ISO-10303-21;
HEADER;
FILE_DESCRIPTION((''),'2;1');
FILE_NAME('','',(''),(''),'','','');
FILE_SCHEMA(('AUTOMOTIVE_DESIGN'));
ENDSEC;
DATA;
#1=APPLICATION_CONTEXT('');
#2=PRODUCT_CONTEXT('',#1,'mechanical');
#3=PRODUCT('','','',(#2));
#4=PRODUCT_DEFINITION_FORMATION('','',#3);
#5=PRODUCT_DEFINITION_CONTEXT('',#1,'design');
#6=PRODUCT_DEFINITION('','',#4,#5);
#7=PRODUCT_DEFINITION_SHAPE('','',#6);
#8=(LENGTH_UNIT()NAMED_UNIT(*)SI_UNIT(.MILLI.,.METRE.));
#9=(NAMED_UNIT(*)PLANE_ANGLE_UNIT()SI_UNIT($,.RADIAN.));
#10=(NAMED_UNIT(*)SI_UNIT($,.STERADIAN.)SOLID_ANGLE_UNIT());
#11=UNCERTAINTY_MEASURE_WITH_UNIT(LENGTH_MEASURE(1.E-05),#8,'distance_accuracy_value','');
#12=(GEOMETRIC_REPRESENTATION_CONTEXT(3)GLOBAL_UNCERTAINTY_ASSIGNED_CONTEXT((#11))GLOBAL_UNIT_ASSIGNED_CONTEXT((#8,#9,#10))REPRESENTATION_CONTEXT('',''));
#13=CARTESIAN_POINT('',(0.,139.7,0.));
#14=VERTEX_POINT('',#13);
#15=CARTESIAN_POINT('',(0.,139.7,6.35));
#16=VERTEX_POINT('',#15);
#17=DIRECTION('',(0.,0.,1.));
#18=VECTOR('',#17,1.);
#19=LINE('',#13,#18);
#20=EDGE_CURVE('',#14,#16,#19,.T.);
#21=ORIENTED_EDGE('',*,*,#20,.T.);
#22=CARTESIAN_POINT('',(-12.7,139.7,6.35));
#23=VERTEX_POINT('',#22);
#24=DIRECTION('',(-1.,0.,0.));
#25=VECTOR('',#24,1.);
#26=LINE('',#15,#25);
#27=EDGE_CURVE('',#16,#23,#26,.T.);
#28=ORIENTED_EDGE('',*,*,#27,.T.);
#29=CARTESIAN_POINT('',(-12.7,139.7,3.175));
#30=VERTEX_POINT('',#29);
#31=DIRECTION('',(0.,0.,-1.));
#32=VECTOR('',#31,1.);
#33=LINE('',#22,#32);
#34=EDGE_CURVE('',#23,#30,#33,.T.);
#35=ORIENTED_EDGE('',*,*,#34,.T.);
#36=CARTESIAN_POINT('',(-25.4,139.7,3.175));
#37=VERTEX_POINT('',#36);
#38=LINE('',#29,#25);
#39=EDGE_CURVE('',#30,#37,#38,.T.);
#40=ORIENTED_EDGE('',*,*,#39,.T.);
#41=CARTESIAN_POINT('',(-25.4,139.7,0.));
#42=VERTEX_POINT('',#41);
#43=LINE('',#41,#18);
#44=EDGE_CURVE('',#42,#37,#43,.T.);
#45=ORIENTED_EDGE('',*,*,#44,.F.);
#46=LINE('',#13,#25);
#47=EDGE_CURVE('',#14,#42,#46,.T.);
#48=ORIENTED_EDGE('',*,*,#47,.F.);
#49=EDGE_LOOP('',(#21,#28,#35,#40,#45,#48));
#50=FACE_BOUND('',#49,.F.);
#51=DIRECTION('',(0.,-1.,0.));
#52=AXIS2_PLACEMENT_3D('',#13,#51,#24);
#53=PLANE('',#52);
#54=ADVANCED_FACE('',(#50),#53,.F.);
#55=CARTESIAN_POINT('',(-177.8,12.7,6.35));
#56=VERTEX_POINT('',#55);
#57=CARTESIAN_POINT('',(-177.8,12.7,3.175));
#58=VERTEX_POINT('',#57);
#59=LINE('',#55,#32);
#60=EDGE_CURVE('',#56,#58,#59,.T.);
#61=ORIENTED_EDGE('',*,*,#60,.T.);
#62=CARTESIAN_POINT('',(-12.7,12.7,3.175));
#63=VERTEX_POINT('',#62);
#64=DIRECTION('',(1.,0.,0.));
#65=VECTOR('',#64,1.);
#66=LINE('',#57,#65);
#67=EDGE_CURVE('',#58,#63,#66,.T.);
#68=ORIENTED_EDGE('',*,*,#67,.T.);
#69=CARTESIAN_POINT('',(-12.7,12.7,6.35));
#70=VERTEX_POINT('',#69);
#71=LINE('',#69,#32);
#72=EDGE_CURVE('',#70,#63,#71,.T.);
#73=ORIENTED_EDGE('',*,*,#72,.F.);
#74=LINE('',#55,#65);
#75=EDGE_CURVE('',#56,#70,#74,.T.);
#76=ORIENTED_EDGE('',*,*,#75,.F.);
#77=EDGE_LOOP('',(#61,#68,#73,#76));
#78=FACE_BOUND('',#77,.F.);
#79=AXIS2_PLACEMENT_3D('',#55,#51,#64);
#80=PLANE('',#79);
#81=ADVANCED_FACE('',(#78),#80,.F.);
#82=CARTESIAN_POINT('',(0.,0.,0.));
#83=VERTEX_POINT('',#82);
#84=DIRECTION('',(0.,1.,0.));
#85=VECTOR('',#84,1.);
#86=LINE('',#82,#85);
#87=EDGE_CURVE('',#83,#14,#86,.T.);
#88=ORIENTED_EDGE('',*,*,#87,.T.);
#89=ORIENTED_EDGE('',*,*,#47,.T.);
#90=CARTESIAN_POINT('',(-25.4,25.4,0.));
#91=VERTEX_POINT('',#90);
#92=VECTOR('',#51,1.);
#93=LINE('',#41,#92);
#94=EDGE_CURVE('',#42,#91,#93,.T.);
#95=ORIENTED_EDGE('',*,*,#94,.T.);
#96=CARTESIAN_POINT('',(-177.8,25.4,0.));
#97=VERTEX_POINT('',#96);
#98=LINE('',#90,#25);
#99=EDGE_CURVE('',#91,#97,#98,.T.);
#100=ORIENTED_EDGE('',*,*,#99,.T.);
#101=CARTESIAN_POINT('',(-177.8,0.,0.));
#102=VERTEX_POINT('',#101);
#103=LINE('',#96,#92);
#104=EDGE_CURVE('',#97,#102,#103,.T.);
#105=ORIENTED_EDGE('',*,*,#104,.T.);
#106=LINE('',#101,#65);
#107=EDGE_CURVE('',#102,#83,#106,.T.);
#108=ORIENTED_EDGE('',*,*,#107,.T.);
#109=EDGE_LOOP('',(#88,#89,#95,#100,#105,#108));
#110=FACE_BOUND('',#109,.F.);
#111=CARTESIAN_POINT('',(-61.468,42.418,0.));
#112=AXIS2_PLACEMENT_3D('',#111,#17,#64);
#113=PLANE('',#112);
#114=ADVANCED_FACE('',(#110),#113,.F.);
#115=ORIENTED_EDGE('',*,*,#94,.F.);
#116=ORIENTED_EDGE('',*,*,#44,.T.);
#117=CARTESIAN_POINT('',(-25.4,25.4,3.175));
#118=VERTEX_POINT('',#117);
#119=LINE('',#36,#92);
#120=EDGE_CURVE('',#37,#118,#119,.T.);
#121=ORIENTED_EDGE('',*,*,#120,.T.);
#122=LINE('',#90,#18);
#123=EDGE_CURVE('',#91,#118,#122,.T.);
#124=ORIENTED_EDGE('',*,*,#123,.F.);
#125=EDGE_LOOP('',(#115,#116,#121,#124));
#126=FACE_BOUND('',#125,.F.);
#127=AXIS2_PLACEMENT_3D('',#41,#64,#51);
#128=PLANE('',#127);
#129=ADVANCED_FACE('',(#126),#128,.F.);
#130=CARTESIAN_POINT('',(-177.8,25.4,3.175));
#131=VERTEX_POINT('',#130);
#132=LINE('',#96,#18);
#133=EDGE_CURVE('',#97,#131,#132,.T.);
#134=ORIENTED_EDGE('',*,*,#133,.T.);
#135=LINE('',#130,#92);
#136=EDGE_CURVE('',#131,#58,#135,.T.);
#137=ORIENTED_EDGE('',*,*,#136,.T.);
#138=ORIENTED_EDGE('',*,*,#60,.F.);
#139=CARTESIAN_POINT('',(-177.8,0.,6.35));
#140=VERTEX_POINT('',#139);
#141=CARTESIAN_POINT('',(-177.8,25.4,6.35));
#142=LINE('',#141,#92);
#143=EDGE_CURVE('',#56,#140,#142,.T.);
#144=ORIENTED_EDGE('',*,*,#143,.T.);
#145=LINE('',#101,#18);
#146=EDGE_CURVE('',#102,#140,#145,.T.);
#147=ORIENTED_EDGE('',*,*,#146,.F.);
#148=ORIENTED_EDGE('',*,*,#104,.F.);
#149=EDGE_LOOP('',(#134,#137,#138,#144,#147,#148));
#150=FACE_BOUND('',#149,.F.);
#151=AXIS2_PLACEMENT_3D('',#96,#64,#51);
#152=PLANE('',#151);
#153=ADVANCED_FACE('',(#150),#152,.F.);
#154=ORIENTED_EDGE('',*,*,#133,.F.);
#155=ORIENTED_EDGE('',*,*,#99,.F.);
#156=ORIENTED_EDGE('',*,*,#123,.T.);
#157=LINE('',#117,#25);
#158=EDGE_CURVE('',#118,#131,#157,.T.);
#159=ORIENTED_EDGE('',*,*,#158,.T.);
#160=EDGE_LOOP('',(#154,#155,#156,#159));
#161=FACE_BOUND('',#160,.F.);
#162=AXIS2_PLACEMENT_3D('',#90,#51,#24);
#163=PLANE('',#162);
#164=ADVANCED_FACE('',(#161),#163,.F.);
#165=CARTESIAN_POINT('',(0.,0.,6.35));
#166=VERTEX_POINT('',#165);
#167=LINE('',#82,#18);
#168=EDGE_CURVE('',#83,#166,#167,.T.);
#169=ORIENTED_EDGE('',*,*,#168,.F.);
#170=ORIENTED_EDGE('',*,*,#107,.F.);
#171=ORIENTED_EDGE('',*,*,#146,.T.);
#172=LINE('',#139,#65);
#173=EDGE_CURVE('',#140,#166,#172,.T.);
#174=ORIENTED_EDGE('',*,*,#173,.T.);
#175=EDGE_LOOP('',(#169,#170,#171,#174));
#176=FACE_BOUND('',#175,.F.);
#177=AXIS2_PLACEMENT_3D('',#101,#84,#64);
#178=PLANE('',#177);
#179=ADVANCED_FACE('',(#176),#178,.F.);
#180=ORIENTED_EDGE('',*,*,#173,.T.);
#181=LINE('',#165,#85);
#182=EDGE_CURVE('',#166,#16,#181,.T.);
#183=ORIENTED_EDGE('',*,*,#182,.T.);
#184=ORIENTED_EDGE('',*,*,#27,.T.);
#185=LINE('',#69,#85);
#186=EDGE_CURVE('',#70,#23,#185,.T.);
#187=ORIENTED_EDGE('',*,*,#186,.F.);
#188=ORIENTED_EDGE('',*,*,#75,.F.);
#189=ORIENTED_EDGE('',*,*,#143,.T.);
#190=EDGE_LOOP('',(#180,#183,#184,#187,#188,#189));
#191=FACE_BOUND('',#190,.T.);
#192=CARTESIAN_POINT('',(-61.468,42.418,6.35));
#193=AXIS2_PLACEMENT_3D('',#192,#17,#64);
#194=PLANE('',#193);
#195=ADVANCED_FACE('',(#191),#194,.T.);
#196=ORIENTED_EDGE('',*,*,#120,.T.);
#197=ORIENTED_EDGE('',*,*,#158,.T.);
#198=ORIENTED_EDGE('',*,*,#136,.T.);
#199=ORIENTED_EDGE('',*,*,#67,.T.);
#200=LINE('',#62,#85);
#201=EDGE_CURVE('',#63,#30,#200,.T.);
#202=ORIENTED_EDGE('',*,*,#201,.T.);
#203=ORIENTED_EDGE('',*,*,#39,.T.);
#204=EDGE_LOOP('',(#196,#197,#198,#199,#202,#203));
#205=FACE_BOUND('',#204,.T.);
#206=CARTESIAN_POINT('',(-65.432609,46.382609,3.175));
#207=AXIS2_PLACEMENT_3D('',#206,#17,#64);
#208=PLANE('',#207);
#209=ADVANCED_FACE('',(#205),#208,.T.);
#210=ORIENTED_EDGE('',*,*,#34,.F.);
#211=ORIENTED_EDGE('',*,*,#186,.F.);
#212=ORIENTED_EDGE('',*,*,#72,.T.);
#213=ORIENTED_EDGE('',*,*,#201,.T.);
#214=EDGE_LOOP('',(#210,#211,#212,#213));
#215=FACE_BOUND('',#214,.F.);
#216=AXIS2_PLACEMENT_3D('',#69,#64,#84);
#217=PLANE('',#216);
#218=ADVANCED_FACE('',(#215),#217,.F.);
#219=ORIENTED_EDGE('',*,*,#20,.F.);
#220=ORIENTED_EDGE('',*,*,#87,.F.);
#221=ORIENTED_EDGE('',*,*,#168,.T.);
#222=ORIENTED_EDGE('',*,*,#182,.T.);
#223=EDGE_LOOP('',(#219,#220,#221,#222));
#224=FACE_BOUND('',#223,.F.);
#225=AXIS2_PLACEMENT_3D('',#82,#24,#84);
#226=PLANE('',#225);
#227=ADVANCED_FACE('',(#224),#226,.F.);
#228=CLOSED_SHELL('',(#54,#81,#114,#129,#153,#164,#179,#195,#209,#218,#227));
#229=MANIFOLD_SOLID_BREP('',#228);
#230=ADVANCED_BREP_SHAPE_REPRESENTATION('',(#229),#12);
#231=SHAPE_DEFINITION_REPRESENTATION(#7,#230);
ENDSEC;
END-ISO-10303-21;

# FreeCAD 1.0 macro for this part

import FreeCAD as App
import Part
import Sketcher

V = App.Vector
Q = App.Units.Quantity

doc = App.newDocument("Part")
body = doc.addObject("PartDesign::Body", "Body")

# Sketch on XY plane
sketch1 = body.newObject("Sketcher::SketchObject", "Sketch")
sketch1.AttachmentSupport = (doc.getObject("XY_Plane"), [""])
sketch1.MapMode = "FlatFace"
sketch1.addGeometry([
    Part.LineSegment(V(-178, 0, 0), V(0, 0, 0)),  # 0
    Part.LineSegment(V(0, 0, 0), V(0, 140, 0)),  # 1
    Part.LineSegment(V(0, 140, 0), V(-25, 140, 0)),  # 2
    Part.LineSegment(V(-25, 140, 0), V(-25, 25, 0)),  # 3
    Part.LineSegment(V(-25, 25, 0), V(-178, 25, 0)),  # 4
    Part.LineSegment(V(-178, 25, 0), V(-178, 0, 0)),  # 5
], False)
sketch1.addConstraint([
    Sketcher.Constraint("Coincident", 0, 2, 1, 1),
    Sketcher.Constraint("Coincident", 1, 2, 2, 1),
    Sketcher.Constraint("Coincident", 2, 2, 3, 1),
    Sketcher.Constraint("Coincident", 3, 2, 4, 1),
    Sketcher.Constraint("Coincident", 4, 2, 5, 1),
    Sketcher.Constraint("Coincident", 5, 2, 0, 1),
    Sketcher.Constraint("Horizontal", 0),
    Sketcher.Constraint("Vertical", 1),
    Sketcher.Constraint("Horizontal", 2),
    Sketcher.Constraint("Vertical", 3),
    Sketcher.Constraint("Horizontal", 4),
    Sketcher.Constraint("Vertical", 5),
    Sketcher.Constraint("Coincident", 0, 2, -1, 1),
    Sketcher.Constraint("Equal", 2, 5),
    Sketcher.Constraint("DistanceX", 0, 1, 0, 2, Q("7 in")),
    Sketcher.Constraint("DistanceX", 2, 2, 2, 1, Q("1 in")),
    Sketcher.Constraint("DistanceY", 1, 1, 1, 2, Q("5.5 in")),
])
pad1 = body.newObject("PartDesign::Pad", "Pad")
pad1.Profile = sketch1
pad1.Length = Q("0.25 in")

# Sketch on XY plane
sketch2 = body.newObject("Sketcher::SketchObject", "Sketch001")
sketch2.AttachmentSupport = (doc.getObject("XY_Plane"), [""])
sketch2.MapMode = "FlatFace"
sketch2.AttachmentOffset = App.Placement(V(0, 0, 0.25 * 25.4), App.Rotation())
sketch2.addGeometry([
    Part.LineSegment(V(-178, 25, 0), V(-178, 13, 0)),  # 0
    Part.LineSegment(V(-178, 13, 0), V(-13, 13, 0)),  # 1
    Part.LineSegment(V(-13, 13, 0), V(-13, 140, 0)),  # 2
    Part.LineSegment(V(-13, 140, 0), V(-25, 140, 0)),  # 3
    Part.LineSegment(V(-25, 140, 0), V(-25, 25, 0)),  # 4
    Part.LineSegment(V(-25, 25, 0), V(-178, 25, 0)),  # 5
], False)
sketch2.addConstraint([
    Sketcher.Constraint("Coincident", 0, 2, 1, 1),
    Sketcher.Constraint("Coincident", 1, 2, 2, 1),
    Sketcher.Constraint("Coincident", 2, 2, 3, 1),
    Sketcher.Constraint("Coincident", 3, 2, 4, 1),
    Sketcher.Constraint("Coincident", 4, 2, 5, 1),
    Sketcher.Constraint("Coincident", 5, 2, 0, 1),
    Sketcher.Constraint("Vertical", 0),
    Sketcher.Constraint("Horizontal", 1),
    Sketcher.Constraint("Vertical", 2),
    Sketcher.Constraint("Horizontal", 3),
    Sketcher.Constraint("Vertical", 4),
    Sketcher.Constraint("Horizontal", 5),
    Sketcher.Constraint("Equal", 3, 0),
    Sketcher.Constraint("DistanceX", 5, 2, 5, 1, Q("6 in")),
    Sketcher.Constraint("DistanceY", 2, 1, 2, 2, Q("5 in")),
    Sketcher.Constraint("DistanceX", 1, 1, 1, 2, Q("6.5 in")),
    Sketcher.Constraint("DistanceX", 0, 2, -1, 1, Q("7 in")),
    Sketcher.Constraint("DistanceY", -1, 1, 4, 2, Q("1 in")),
])
pocket1 = body.newObject("PartDesign::Pocket", "Pocket")
pocket1.Profile = sketch2
pocket1.Length = Q("0.125 in")

doc.recompute()
